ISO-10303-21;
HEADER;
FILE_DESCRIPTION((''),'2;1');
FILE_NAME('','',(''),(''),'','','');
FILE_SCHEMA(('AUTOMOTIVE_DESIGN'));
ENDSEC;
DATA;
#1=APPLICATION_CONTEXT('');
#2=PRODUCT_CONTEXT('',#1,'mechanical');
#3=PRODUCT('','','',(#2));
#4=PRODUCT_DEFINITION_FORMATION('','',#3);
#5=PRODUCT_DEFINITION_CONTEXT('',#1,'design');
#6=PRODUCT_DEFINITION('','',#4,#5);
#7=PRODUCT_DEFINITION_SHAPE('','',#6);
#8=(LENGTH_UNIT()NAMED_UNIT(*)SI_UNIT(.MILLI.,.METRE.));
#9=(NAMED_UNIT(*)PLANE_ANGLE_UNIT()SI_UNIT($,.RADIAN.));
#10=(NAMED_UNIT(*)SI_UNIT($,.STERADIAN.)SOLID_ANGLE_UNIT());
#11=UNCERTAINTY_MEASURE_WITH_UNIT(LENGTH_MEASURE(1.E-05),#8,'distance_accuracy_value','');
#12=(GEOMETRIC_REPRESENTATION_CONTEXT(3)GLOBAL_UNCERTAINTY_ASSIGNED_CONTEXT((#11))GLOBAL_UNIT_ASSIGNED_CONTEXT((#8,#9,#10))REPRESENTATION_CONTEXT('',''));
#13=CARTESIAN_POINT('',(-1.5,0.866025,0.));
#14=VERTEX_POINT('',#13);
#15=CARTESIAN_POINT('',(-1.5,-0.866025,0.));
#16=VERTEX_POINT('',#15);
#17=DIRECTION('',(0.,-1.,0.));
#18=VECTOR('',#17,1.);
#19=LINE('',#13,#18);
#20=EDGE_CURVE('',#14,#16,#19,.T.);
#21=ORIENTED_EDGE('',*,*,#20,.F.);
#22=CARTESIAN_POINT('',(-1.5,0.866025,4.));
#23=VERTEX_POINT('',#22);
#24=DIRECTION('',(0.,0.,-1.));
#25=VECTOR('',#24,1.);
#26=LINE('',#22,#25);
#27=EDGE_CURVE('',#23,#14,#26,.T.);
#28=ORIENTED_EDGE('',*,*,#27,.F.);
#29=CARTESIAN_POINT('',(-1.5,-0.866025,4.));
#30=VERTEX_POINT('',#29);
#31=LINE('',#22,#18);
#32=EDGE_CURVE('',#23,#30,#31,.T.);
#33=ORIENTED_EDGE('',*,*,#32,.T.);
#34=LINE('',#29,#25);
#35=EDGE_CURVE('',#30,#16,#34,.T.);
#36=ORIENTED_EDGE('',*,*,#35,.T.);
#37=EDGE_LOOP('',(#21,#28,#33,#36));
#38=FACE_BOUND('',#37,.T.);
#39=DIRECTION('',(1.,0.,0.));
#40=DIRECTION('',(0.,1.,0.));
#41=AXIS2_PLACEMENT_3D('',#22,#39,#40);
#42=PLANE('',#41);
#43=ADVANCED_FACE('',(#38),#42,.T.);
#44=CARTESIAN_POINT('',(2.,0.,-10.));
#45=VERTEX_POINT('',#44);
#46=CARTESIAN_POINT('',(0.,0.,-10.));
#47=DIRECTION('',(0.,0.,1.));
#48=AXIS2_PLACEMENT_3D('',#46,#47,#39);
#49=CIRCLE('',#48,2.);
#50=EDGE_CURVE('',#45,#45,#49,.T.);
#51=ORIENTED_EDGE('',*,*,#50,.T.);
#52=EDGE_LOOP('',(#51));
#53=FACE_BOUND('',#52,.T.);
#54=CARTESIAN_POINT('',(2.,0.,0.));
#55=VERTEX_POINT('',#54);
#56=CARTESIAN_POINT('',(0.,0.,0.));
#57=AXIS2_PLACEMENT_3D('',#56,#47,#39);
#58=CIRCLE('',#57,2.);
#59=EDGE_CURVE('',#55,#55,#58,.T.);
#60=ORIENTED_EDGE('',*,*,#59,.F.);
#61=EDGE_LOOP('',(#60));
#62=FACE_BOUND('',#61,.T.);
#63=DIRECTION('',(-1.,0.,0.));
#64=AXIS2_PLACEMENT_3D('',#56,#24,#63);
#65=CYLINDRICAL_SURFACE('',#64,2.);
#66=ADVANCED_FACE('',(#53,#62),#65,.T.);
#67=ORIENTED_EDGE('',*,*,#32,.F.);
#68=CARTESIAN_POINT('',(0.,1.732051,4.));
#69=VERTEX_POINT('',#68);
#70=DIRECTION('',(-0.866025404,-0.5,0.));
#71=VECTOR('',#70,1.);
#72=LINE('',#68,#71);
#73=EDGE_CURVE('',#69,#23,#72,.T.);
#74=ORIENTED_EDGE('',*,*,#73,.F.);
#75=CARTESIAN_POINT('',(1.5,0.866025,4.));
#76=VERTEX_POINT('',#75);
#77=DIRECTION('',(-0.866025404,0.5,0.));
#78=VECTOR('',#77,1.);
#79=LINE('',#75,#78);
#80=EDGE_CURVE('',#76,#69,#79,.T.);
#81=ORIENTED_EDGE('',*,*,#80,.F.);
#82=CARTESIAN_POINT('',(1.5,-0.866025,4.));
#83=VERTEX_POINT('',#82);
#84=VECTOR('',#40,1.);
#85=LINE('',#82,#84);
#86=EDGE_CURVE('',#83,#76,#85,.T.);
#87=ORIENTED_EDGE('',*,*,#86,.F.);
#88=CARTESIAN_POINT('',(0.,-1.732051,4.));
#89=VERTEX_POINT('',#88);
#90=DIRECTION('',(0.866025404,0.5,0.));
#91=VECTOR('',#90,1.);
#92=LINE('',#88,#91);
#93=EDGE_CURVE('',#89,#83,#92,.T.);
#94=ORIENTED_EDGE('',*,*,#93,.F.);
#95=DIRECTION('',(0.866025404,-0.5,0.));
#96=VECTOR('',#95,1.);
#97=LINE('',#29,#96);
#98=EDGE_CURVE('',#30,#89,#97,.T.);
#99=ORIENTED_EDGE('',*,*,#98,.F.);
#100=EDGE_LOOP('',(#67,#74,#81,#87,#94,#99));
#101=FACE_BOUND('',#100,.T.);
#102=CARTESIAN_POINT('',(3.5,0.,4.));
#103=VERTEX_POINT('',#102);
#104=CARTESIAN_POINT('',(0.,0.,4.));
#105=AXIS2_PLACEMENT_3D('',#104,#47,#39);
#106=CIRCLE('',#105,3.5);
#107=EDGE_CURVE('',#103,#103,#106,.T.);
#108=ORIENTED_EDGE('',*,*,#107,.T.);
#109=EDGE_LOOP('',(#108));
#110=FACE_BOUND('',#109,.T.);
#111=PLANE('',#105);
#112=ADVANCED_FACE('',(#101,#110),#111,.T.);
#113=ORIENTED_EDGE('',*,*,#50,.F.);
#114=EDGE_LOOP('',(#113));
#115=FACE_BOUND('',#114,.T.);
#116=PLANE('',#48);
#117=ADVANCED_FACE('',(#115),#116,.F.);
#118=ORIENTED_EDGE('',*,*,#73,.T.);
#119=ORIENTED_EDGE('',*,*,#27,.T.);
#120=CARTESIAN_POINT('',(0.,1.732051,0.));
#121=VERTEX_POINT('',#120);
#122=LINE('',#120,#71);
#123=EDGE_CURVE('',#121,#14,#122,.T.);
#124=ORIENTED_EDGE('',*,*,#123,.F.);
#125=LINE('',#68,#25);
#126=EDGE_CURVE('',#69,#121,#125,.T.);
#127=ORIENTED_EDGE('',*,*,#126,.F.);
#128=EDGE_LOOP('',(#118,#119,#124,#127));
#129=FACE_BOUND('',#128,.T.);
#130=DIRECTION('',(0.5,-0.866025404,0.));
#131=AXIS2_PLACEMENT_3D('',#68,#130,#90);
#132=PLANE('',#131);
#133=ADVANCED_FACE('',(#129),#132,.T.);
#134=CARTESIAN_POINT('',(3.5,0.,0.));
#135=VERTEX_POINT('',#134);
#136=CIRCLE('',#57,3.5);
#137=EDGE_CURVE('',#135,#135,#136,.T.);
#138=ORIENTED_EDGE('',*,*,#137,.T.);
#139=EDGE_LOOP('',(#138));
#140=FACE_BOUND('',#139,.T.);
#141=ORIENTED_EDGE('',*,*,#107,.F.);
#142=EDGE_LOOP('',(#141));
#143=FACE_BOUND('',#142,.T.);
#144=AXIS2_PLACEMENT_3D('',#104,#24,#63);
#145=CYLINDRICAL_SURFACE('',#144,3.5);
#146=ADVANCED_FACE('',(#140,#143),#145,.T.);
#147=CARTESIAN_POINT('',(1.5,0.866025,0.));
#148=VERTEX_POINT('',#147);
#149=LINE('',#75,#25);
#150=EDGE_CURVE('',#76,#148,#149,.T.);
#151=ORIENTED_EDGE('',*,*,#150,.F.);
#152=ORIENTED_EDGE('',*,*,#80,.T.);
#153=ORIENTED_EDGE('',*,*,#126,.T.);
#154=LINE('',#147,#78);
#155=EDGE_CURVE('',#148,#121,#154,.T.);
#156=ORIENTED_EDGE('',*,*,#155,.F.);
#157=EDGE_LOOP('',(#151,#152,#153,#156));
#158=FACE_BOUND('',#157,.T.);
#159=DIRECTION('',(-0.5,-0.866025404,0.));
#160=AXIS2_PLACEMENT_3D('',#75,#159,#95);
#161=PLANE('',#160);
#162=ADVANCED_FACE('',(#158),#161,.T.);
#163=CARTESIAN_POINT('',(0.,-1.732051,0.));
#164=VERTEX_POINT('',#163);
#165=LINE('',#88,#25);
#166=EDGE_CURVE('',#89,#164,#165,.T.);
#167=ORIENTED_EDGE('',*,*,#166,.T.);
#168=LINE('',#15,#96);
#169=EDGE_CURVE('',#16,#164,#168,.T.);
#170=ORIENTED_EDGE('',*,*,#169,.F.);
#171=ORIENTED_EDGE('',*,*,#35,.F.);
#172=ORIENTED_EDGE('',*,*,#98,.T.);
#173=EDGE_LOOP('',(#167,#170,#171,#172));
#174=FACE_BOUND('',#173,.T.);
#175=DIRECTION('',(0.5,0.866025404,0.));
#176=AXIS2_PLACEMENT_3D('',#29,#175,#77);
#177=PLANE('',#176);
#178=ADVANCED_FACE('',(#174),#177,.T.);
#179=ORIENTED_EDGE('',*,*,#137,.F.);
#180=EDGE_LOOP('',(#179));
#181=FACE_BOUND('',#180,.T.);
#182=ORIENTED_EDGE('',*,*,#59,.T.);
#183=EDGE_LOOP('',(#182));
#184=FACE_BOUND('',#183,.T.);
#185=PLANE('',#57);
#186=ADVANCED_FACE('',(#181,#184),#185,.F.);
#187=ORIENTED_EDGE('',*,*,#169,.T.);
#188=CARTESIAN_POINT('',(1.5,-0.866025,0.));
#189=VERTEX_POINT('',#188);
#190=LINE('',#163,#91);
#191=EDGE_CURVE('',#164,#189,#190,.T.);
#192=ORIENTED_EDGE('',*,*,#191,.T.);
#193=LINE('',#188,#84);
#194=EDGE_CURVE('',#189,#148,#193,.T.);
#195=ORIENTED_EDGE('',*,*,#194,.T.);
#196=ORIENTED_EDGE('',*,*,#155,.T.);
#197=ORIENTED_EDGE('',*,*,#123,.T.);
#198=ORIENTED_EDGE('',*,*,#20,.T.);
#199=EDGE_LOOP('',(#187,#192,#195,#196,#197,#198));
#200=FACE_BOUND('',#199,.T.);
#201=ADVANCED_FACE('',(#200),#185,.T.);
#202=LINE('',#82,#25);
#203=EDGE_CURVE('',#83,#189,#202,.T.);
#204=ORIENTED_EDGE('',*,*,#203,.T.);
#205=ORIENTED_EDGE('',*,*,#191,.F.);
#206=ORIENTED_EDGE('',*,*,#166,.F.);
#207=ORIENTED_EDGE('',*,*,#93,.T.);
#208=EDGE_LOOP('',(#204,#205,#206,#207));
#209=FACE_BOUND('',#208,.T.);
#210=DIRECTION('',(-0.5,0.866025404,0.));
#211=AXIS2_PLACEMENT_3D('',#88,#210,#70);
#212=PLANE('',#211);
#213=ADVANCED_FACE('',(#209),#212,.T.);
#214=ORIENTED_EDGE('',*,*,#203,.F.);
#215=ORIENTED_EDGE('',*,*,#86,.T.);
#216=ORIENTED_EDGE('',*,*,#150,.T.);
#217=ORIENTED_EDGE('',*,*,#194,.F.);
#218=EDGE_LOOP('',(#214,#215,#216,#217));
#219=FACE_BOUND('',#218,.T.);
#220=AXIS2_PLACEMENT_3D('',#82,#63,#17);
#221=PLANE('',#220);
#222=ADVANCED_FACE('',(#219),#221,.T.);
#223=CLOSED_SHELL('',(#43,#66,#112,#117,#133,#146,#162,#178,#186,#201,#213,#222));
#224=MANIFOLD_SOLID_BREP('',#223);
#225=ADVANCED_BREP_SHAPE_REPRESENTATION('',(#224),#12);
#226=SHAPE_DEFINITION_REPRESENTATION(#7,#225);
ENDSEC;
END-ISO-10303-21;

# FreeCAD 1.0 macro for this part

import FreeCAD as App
import Part
import Sketcher

V = App.Vector
Q = App.Units.Quantity

doc = App.newDocument("Part")
body = doc.addObject("PartDesign::Body", "Body")

# Sketch on XY plane
sketch1 = body.newObject("Sketcher::SketchObject", "Sketch")
sketch1.AttachmentSupport = (doc.getObject("XY_Plane"), [""])
sketch1.MapMode = "FlatFace"
sketch1.AttachmentOffset = App.Placement(V(0, 0, -10), App.Rotation())
sketch1.addGeometry(Part.Circle(V(0, 0, 0), V(0, 0, 1), 2), False)
sketch1.addConstraint(Sketcher.Constraint("Coincident", 0, 3, -1, 1))
sketch1.addConstraint(Sketcher.Constraint("Diameter", 0, 4.0))
pad1 = body.newObject("PartDesign::Pad", "Pad")
pad1.Profile = sketch1
pad1.Length = 10

# Sketch on XY plane
sketch2 = body.newObject("Sketcher::SketchObject", "Sketch001")
sketch2.AttachmentSupport = (doc.getObject("XY_Plane"), [""])
sketch2.MapMode = "FlatFace"
sketch2.addGeometry(Part.Circle(V(0, 0, 0), V(0, 0, 1), 3.5), False)
sketch2.addGeometry(Part.LineSegment(V(0, 1.732051, 0), V(1.5, 0.866025, 0)), False)
sketch2.addGeometry(Part.LineSegment(V(1.5, 0.866025, 0), V(1.5, -0.866025, 0)), False)
sketch2.addGeometry(Part.LineSegment(V(1.5, -0.866025, 0), V(0, -1.732051, 0)), False)
sketch2.addGeometry(Part.LineSegment(V(0, -1.732051, 0), V(-1.5, -0.866025, 0)), False)
sketch2.addGeometry(Part.LineSegment(V(-1.5, -0.866025, 0), V(-1.5, 0.866025, 0)), False)
sketch2.addGeometry(Part.LineSegment(V(-1.5, 0.866025, 0), V(0, 1.732051, 0)), False)
sketch2.addConstraint(Sketcher.Constraint("Coincident", 1, 2, 2, 1))
sketch2.addConstraint(Sketcher.Constraint("Coincident", 2, 2, 3, 1))
sketch2.addConstraint(Sketcher.Constraint("Coincident", 3, 2, 4, 1))
sketch2.addConstraint(Sketcher.Constraint("Coincident", 4, 2, 5, 1))
sketch2.addConstraint(Sketcher.Constraint("Coincident", 5, 2, 6, 1))
sketch2.addConstraint(Sketcher.Constraint("Coincident", 6, 2, 1, 1))
sketch2.addConstraint(Sketcher.Constraint("Vertical", 2))
sketch2.addConstraint(Sketcher.Constraint("Vertical", 5))
sketch2.addConstraint(Sketcher.Constraint("Coincident", 0, 3, -1, 1))
sketch2.addConstraint(Sketcher.Constraint("Symmetric", 1, 2, 4, 2, -1, 1))
sketch2.addConstraint(Sketcher.Constraint("Symmetric", 3, 2, 6, 2, -1, 1))
sketch2.addConstraint(Sketcher.Constraint("PointOnObject", 3, 2, -2))
sketch2.addConstraint(Sketcher.Constraint("Parallel", 3, 6))
sketch2.addConstraint(Sketcher.Constraint("Horizontal", 2, 2, 4, 2))
sketch2.addConstraint(Sketcher.Constraint("Diameter", 0, 7.0))
sketch2.addConstraint(Sketcher.Constraint("Angle", 1, Q("-30 deg")))
sketch2.addConstraint(Sketcher.Constraint("DistanceX", 4, 2, 2, 2, 3.0))
sketch2.addConstraint(Sketcher.Constraint("DistanceY", 2, 2, 2, 1, 1.732051))
pad2 = body.newObject("PartDesign::Pad", "Pad001")
pad2.Profile = sketch2
pad2.Length = 4

doc.recompute()
